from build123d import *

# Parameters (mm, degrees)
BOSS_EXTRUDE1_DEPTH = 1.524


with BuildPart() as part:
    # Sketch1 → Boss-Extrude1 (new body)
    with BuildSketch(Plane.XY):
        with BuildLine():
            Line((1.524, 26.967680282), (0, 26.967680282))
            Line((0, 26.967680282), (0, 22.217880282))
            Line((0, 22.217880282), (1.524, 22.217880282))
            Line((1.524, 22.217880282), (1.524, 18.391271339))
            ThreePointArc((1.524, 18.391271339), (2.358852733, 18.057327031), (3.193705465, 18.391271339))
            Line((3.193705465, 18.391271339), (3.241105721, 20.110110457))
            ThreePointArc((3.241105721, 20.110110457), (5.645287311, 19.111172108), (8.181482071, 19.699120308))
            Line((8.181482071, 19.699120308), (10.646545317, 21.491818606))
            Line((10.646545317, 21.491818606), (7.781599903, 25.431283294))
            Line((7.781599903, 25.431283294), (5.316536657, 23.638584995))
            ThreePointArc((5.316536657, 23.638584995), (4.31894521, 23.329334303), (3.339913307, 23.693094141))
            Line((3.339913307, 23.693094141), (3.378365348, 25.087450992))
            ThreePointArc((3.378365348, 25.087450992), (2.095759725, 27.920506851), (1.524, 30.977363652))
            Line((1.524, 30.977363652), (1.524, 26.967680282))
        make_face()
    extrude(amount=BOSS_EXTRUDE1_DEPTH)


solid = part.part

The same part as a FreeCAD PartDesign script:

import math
import FreeCAD as App
import Part
import Sketcher

V = App.Vector
Q = App.Units.Quantity

doc = App.newDocument("Part")
body = doc.addObject("PartDesign::Body", "Body")

# Sketch on XY plane
sketch1 = body.newObject("Sketcher::SketchObject", "Sketch")
sketch1.AttachmentSupport = (doc.getObject("XY_Plane"), [""])
sketch1.MapMode = "FlatFace"
sketch1.addGeometry(Part.LineSegment(V(1.5, 27, 0), V(0, 27, 0)), False)
sketch1.addGeometry(Part.LineSegment(V(0, 27, 0), V(0, 22.2, 0)), False)
sketch1.addGeometry(Part.LineSegment(V(0, 22.2, 0), V(1.5, 22.2, 0)), False)
sketch1.addGeometry(Part.LineSegment(V(1.5, 22.2, 0), V(1.5, 18.4, 0)), False)
sketch1.addGeometry(Part.ArcOfCircle(Part.Circle(V(2.4, 19.3, 0), V(0, 0, 1), 1.2), math.radians(-134), math.radians(-46)), False)
sketch1.addGeometry(Part.LineSegment(V(3.2, 18.4, 0), V(3.2, 20.1, 0)), False)
sketch1.addGeometry(Part.ArcOfCircle(Part.Circle(V(6, 23.4, 0), V(0, 0, 1), 4.3), math.radians(-130), math.radians(-59)), False)
sketch1.addGeometry(Part.LineSegment(V(8.2, 19.7, 0), V(10.6, 21.5, 0)), False)
sketch1.addGeometry(Part.LineSegment(V(10.6, 21.5, 0), V(7.8, 25.4, 0)), False)
sketch1.addGeometry(Part.LineSegment(V(7.8, 25.4, 0), V(5.3, 23.6, 0)), False)
sketch1.addGeometry(Part.ArcOfCircle(Part.Circle(V(4.4, 24.9, 0), V(0, 0, 1), 1.6), math.radians(-129), math.radians(-54)), False)
sketch1.addGeometry(Part.LineSegment(V(3.3, 23.7, 0), V(3.4, 25.1, 0)), False)
sketch1.addGeometry(Part.ArcOfCircle(Part.Circle(V(14.5, 31.8, 0), V(0, 0, 1), 13), math.radians(-176), math.radians(-149)), False)
sketch1.addGeometry(Part.LineSegment(V(1.5, 31, 0), V(1.5, 27, 0)), False)
sketch1.addConstraint(Sketcher.Constraint("Coincident", 0, 2, 1, 1))
sketch1.addConstraint(Sketcher.Constraint("Coincident", 1, 2, 2, 1))
sketch1.addConstraint(Sketcher.Constraint("Coincident", 2, 2, 3, 1))
sketch1.addConstraint(Sketcher.Constraint("Coincident", 3, 2, 4, 1))
sketch1.addConstraint(Sketcher.Constraint("Coincident", 4, 2, 5, 1))
sketch1.addConstraint(Sketcher.Constraint("Coincident", 5, 2, 6, 1))
sketch1.addConstraint(Sketcher.Constraint("Coincident", 6, 2, 7, 1))
sketch1.addConstraint(Sketcher.Constraint("Coincident", 7, 2, 8, 1))
sketch1.addConstraint(Sketcher.Constraint("Coincident", 8, 2, 9, 1))
sketch1.addConstraint(Sketcher.Constraint("Tangent", 9, 2, 10, 2))
sketch1.addConstraint(Sketcher.Constraint("Coincident", 10, 1, 11, 1))
sketch1.addConstraint(Sketcher.Constraint("Coincident", 11, 2, 12, 2))
sketch1.addConstraint(Sketcher.Constraint("Coincident", 12, 1, 13, 1))
sketch1.addConstraint(Sketcher.Constraint("Coincident", 13, 2, 0, 1))
sketch1.addConstraint(Sketcher.Constraint("Horizontal", 0))
sketch1.addConstraint(Sketcher.Constraint("Vertical", 1))
sketch1.addConstraint(Sketcher.Constraint("Horizontal", 2))
sketch1.addConstraint(Sketcher.Constraint("Vertical", 3))
sketch1.addConstraint(Sketcher.Constraint("Vertical", 13))
sketch1.addConstraint(Sketcher.Constraint("PointOnObject", 0, 2, -2))
sketch1.addConstraint(Sketcher.Constraint("Perpendicular", 7, 8))
sketch1.addConstraint(Sketcher.Constraint("Perpendicular", 8, 9))
sketch1.addConstraint(Sketcher.Constraint("Parallel", 5, 11))
sketch1.addConstraint(Sketcher.Constraint("Horizontal", 3, 2, 4, 2))
sketch1.addConstraint(Sketcher.Constraint("Vertical", 3, 2, 12, 1))
sketch1.addConstraint(Sketcher.Constraint("Equal", 7, 9))
sketch1.addConstraint(Sketcher.Constraint("DistanceX", 0, 2, 0, 1, Q("0.06 in")))
sketch1.addConstraint(Sketcher.Constraint("Distance", 7, Q("0.12 in")))
sketch1.addConstraint(Sketcher.Constraint("DistanceY", 1, 2, 1, 1, Q("0.187 in")))
sketch1.addConstraint(Sketcher.Constraint("Radius", 4, 1.210528))
sketch1.addConstraint(Sketcher.Constraint("Radius", 6, 4.256533))
sketch1.addConstraint(Sketcher.Constraint("Radius", 10, 1.620198))
sketch1.addConstraint(Sketcher.Constraint("Radius", 12, 12.977336))
sketch1.addConstraint(Sketcher.Constraint("DistanceY", 3, 2, 3, 1, 3.826609))
sketch1.addConstraint(Sketcher.Constraint("DistanceX", -1, 1, 12, 3, 14.474101))
sketch1.addConstraint(Sketcher.Constraint("DistanceX", -1, 1, 8, 2, 7.7816))
sketch1.addConstraint(Sketcher.Constraint("DistanceX", 4, 2, 5, 2, 0.0474))
sketch1.addConstraint(Sketcher.Constraint("DistanceY", 6, 2, 7, 2, 1.792698))
sketch1.addConstraint(Sketcher.Constraint("DistanceY", 6, 3, 11, 2, 1.734399))
sketch1.addConstraint(Sketcher.Constraint("DistanceY", 13, 2, 13, 1, 4.009683))
sketch1.addConstraint(Sketcher.Constraint("DistanceX", -1, 1, 6, 3, 5.998169))
sketch1.addConstraint(Sketcher.Constraint("DistanceY", -1, 1, 6, 3, 23.353052))
sketch1.addConstraint(Sketcher.Constraint("DistanceY", -1, 1, 0, 2, 26.96768))
sketch1.addConstraint(Sketcher.Constraint("DistanceY", -1, 1, 5, 2, 20.11011))
sketch1.addConstraint(Sketcher.Constraint("DistanceY", -1, 1, 6, 2, 19.69912))
pad1 = body.newObject("PartDesign::Pad", "Pad")
pad1.Profile = sketch1
pad1.Length = Q("0.06 in")

doc.recompute()
